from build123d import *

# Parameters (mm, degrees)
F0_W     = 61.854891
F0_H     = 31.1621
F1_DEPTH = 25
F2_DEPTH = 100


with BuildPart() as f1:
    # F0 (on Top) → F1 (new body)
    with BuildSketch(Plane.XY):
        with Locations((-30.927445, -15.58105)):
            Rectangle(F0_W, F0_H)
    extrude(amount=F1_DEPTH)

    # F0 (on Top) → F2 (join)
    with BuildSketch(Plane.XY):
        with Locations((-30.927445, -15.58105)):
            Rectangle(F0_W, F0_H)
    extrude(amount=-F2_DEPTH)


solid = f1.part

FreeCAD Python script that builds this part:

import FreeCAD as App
import Part
import Sketcher

V = App.Vector
Q = App.Units.Quantity

doc = App.newDocument("Part")
body = doc.addObject("PartDesign::Body", "Body")

# Sketch on XY plane
sketch1 = body.newObject("Sketcher::SketchObject", "Sketch")
sketch1.AttachmentSupport = (doc.getObject("XY_Plane"), [""])
sketch1.MapMode = "FlatFace"
sketch1.addGeometry([
    Part.LineSegment(V(-61.854891, 0, 0), V(-61.854891, -31.1621, 0)),
    Part.LineSegment(V(-61.854891, -31.1621, 0), V(0, -31.1621, 0)),
    Part.LineSegment(V(0, -31.1621, 0), V(0, 0, 0)),
    Part.LineSegment(V(0, 0, 0), V(-61.854891, 0, 0)),
], False)
sketch1.addConstraint([
    Sketcher.Constraint("Coincident", 0, 2, 1, 1),
    Sketcher.Constraint("Coincident", 1, 2, 2, 1),
    Sketcher.Constraint("Coincident", 2, 2, 3, 1),
    Sketcher.Constraint("Coincident", 3, 2, 0, 1),
    Sketcher.Constraint("Vertical", 0),
    Sketcher.Constraint("Horizontal", 1),
    Sketcher.Constraint("Vertical", 2),
    Sketcher.Constraint("Horizontal", 3),
    Sketcher.Constraint("Coincident", 2, 2, -1, 1),
    Sketcher.Constraint("DistanceY", 0, 2, 0, 1, Q("31.1621 mm")),
    Sketcher.Constraint("DistanceX", 1, 1, 1, 2, Q("61.854891 mm")),
])
pad1 = body.newObject("PartDesign::Pad", "Pad")
pad1.Profile = sketch1
pad1.Length = 25

# Sketch on XY plane
sketch2 = body.newObject("Sketcher::SketchObject", "Sketch001")
sketch2.AttachmentSupport = (doc.getObject("XY_Plane"), [""])
sketch2.MapMode = "FlatFace"
sketch2.addGeometry([
    Part.LineSegment(V(-61.854891, 0, 0), V(-61.854891, -31.1621, 0)),
    Part.LineSegment(V(-61.854891, -31.1621, 0), V(0, -31.1621, 0)),
    Part.LineSegment(V(0, -31.1621, 0), V(0, 0, 0)),
    Part.LineSegment(V(0, 0, 0), V(-61.854891, 0, 0)),
], False)
sketch2.addConstraint([
    Sketcher.Constraint("Coincident", 0, 2, 1, 1),
    Sketcher.Constraint("Coincident", 1, 2, 2, 1),
    Sketcher.Constraint("Coincident", 2, 2, 3, 1),
    Sketcher.Constraint("Coincident", 3, 2, 0, 1),
    Sketcher.Constraint("Vertical", 0),
    Sketcher.Constraint("Horizontal", 1),
    Sketcher.Constraint("Vertical", 2),
    Sketcher.Constraint("Horizontal", 3),
    Sketcher.Constraint("Coincident", 2, 2, -1, 1),
    Sketcher.Constraint("DistanceY", 0, 2, 0, 1, Q("31.1621 mm")),
    Sketcher.Constraint("DistanceX", 1, 1, 1, 2, Q("61.854891 mm")),
])
pad2 = body.newObject("PartDesign::Pad", "Pad001")
pad2.Profile = sketch2
pad2.Length = 100
pad2.Reversed = True

doc.recompute()
